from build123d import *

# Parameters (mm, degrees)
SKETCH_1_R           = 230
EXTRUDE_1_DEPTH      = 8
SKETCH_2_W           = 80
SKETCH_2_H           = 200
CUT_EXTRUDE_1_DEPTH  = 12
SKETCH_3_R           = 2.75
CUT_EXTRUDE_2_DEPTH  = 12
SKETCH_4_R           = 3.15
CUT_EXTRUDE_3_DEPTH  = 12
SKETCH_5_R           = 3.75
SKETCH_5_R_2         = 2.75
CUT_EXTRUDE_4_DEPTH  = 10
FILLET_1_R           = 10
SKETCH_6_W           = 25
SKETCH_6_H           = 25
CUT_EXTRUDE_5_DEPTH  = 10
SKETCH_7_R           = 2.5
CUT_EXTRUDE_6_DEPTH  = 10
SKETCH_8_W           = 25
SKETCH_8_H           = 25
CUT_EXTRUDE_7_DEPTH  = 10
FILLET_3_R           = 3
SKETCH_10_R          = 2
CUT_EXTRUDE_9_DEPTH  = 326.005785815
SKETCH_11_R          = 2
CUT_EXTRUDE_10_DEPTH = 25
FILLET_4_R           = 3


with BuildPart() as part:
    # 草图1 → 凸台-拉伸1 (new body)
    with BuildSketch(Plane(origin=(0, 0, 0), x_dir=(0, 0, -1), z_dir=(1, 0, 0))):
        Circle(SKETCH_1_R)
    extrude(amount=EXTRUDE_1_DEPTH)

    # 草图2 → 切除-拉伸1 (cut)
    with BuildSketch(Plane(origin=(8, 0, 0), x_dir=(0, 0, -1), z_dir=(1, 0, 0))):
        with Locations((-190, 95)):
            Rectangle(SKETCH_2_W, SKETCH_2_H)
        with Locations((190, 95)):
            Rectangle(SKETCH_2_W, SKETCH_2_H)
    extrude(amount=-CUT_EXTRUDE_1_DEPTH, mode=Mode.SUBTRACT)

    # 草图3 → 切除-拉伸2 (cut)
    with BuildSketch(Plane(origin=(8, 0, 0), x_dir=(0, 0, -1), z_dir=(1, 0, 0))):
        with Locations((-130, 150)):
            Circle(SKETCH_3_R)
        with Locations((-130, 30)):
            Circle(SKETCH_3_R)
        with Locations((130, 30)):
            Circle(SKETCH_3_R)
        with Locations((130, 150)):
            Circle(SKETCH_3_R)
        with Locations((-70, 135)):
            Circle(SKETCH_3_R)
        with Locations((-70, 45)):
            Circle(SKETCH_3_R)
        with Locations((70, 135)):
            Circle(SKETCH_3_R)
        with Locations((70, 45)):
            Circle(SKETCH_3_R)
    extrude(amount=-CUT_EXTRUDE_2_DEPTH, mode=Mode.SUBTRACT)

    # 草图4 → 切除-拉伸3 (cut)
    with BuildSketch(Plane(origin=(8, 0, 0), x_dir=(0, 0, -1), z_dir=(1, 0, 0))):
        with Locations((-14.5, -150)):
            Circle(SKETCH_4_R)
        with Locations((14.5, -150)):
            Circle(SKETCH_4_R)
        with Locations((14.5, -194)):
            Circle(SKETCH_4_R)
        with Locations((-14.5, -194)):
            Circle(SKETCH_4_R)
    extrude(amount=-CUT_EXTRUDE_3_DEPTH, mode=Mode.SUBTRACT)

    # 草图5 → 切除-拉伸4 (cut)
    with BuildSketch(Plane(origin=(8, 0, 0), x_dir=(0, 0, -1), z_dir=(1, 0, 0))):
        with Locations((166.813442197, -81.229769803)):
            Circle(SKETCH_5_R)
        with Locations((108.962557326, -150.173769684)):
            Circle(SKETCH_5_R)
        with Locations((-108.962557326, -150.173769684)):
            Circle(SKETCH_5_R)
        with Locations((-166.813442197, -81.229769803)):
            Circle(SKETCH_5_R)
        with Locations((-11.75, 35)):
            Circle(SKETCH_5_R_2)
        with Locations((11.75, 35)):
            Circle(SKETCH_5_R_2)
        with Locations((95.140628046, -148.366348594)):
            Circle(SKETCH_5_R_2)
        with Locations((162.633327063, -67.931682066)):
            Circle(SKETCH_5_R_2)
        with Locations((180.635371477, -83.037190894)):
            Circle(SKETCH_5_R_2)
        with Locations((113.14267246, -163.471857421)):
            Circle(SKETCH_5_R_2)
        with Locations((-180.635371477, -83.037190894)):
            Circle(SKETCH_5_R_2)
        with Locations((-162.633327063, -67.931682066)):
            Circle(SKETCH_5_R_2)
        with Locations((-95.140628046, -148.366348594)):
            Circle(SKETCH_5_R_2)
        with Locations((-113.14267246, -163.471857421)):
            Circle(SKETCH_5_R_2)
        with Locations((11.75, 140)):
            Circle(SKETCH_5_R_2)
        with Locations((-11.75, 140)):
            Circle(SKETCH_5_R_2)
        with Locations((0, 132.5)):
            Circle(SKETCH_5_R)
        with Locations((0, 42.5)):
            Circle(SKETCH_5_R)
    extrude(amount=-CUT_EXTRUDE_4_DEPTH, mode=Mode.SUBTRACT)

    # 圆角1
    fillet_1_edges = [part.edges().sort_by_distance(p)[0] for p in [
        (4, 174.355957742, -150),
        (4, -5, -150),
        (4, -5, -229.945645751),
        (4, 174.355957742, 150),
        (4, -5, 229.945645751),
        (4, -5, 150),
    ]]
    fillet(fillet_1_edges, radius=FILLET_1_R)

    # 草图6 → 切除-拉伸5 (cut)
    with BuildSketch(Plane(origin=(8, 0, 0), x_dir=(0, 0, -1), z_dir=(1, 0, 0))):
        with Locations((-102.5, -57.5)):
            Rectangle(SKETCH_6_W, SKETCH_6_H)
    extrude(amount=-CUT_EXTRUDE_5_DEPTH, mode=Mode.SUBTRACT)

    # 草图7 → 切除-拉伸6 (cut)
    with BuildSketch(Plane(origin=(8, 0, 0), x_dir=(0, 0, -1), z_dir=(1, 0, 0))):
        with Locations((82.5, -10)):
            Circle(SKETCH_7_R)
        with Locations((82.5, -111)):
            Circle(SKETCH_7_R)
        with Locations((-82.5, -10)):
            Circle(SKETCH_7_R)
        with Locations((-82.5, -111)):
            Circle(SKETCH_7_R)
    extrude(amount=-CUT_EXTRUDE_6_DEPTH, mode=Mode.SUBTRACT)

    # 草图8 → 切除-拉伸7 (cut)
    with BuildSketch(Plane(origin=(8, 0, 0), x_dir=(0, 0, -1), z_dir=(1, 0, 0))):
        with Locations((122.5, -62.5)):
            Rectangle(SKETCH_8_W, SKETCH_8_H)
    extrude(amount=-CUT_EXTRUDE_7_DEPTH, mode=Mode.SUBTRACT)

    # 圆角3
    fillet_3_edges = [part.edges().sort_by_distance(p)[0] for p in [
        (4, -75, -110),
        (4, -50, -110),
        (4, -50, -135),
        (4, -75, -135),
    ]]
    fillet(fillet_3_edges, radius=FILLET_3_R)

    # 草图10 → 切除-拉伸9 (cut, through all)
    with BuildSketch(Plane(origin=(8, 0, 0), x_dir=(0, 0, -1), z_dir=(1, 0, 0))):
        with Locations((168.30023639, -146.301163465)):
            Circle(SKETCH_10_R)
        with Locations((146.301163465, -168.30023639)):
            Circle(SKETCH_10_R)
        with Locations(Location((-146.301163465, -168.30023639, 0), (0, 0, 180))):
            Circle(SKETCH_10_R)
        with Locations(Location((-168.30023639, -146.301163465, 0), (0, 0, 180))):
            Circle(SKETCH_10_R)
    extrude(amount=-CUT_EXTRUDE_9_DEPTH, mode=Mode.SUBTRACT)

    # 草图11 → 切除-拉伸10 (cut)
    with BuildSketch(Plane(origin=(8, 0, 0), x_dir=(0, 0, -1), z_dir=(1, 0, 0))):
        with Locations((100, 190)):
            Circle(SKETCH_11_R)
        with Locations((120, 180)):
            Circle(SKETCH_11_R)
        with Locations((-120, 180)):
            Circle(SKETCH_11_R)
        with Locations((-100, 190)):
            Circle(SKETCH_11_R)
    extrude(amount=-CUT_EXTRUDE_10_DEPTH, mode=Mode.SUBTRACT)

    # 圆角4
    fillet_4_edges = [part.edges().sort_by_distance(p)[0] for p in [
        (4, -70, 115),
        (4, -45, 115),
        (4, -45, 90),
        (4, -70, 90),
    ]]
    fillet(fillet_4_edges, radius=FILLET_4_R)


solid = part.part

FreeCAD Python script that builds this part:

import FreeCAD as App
import Part
import Sketcher
from FreeCAD import Vector
Q = App.Units.Quantity


def edges_at(feature, points):
    """Names of the edges that pass closest to the given points."""
    edges = feature.Shape.Edges
    near = lambda p: min(range(len(edges)), key=lambda i: edges[i].distToShape(Part.Vertex(*p))[0])
    return sorted({f"Edge{near(p) + 1}" for p in points})


def add_polygon(sketch, points):
    """Adds a closed chain of lines whose ends are joined by coincident constraints."""
    first, n = sketch.GeometryCount, len(points)
    for a, b in zip(points, points[1:] + points[:1]):
        sketch.addGeometry(Part.LineSegment(App.Vector(*a, 0), App.Vector(*b, 0)), False)
    for i in range(n):
        sketch.addConstraint(Sketcher.Constraint("Coincident", first + i, 2, first + (i + 1) % n, 1))

doc = App.newDocument("Part")
body = doc.addObject("PartDesign::Body", "Body")

# Sketch on YZ plane
sketch1 = body.newObject("Sketcher::SketchObject", "Sketch")
sketch1.AttachmentSupport = (doc.getObject("YZ_Plane"), [""])
sketch1.MapMode = "FlatFace"
sketch1.addGeometry(Part.Circle(Vector(0, 0, 0), Vector(0, 0, 1), 230), False)
sketch1.addConstraint([
    Sketcher.Constraint("Coincident", 0, 3, -1, 1),
    Sketcher.Constraint("Diameter", 0, Q("460 mm")),
])
pad1 = body.newObject("PartDesign::Pad", "Pad")
pad1.Profile = sketch1
pad1.Length = 8

# Sketch on YZ plane
sketch2 = body.newObject("Sketcher::SketchObject", "Sketch001")
sketch2.AttachmentSupport = (doc.getObject("YZ_Plane"), [""])
sketch2.MapMode = "FlatFace"
sketch2.AttachmentOffset = App.Placement(Vector(0, 0, 8), App.Rotation())
add_polygon(sketch2, [(195, 230), (-5, 230), (-5, 150), (195, 150)])  # lines 0-3
add_polygon(sketch2, [(195, -150), (-5, -150), (-5, -230), (195, -230)])  # lines 4-7
sketch2.addConstraint([
    Sketcher.Constraint("Horizontal", 0),
    Sketcher.Constraint("Vertical", 1),
    Sketcher.Constraint("Horizontal", 2),
    Sketcher.Constraint("Vertical", 3),
    Sketcher.Constraint("Horizontal", 4),
    Sketcher.Constraint("Vertical", 5),
    Sketcher.Constraint("Horizontal", 6),
    Sketcher.Constraint("Vertical", 7),
    Sketcher.Constraint("Symmetric", 1, 2, 4, 2, -1),
    Sketcher.Constraint("Symmetric", 3, 2, 6, 2, -1),
    Sketcher.Constraint("DistanceX", 0, 2, 0, 1, Q("200 mm")),
    Sketcher.Constraint("DistanceY", 1, 2, 1, 1, Q("80 mm")),
    Sketcher.Constraint("DistanceX", 0, 2, -1, 1, Q("5 mm")),
    Sketcher.Constraint("DistanceY", -1, 1, 0, 2, Q("230 mm")),
])
pocket1 = body.newObject("PartDesign::Pocket", "Pocket")
pocket1.Profile = sketch2
pocket1.Length = 12

# Sketch on YZ plane
sketch3 = body.newObject("Sketcher::SketchObject", "Sketch002")
sketch3.AttachmentSupport = (doc.getObject("YZ_Plane"), [""])
sketch3.MapMode = "FlatFace"
sketch3.AttachmentOffset = App.Placement(Vector(0, 0, 8), App.Rotation())
sketch3.addGeometry([
    Part.Circle(Vector(150, 130, 0), Vector(0, 0, 1), 2.75),  # 0
    Part.Circle(Vector(30, 130, 0), Vector(0, 0, 1), 2.75),  # 1
    Part.Circle(Vector(30, -130, 0), Vector(0, 0, 1), 2.75),  # 2
    Part.Circle(Vector(150, -130, 0), Vector(0, 0, 1), 2.75),  # 3
    Part.Circle(Vector(135, 70, 0), Vector(0, 0, 1), 2.75),  # 4
    Part.Circle(Vector(45, 70, 0), Vector(0, 0, 1), 2.75),  # 5
    Part.Circle(Vector(135, -70, 0), Vector(0, 0, 1), 2.75),  # 6
    Part.Circle(Vector(45, -70, 0), Vector(0, 0, 1), 2.75),  # 7
], False)
sketch3.addConstraint([
    Sketcher.Constraint("Equal", 0, 1),
    Sketcher.Constraint("Equal", 1, 2),
    Sketcher.Constraint("Equal", 2, 3),
    Sketcher.Constraint("Equal", 3, 4),
    Sketcher.Constraint("Equal", 4, 5),
    Sketcher.Constraint("Equal", 5, 6),
    Sketcher.Constraint("Equal", 6, 7),
    Sketcher.Constraint("Symmetric", 1, 3, 2, 3, -1),
    Sketcher.Constraint("Symmetric", 0, 3, 3, 3, -1),
    Sketcher.Constraint("Symmetric", 4, 3, 6, 3, -1),
    Sketcher.Constraint("Symmetric", 5, 3, 7, 3, -1),
    Sketcher.Constraint("Horizontal", 0, 3, 1, 3),
    Sketcher.Constraint("Horizontal", 4, 3, 5, 3),
    Sketcher.Constraint("Diameter", 0, Q("5.5 mm")),
    Sketcher.Constraint("DistanceX", -1, 1, 0, 3, Q("150 mm")),
    Sketcher.Constraint("DistanceY", -1, 1, 0, 3, Q("130 mm")),
    Sketcher.Constraint("DistanceX", -1, 1, 1, 3, Q("30 mm")),
    Sketcher.Constraint("DistanceX", -1, 1, 4, 3, Q("135 mm")),
    Sketcher.Constraint("DistanceY", -1, 1, 4, 3, Q("70 mm")),
    Sketcher.Constraint("DistanceX", -1, 1, 5, 3, Q("45 mm")),
])
pocket2 = body.newObject("PartDesign::Pocket", "Pocket001")
pocket2.Profile = sketch3
pocket2.Length = 12

# Sketch on YZ plane
sketch4 = body.newObject("Sketcher::SketchObject", "Sketch003")
sketch4.AttachmentSupport = (doc.getObject("YZ_Plane"), [""])
sketch4.MapMode = "FlatFace"
sketch4.AttachmentOffset = App.Placement(Vector(0, 0, 8), App.Rotation())
sketch4.addGeometry([
    Part.Circle(Vector(-150, 14.5, 0), Vector(0, 0, 1), 3.15),
    Part.Circle(Vector(-150, -14.5, 0), Vector(0, 0, 1), 3.15),
    Part.Circle(Vector(-194, -14.5, 0), Vector(0, 0, 1), 3.15),
    Part.Circle(Vector(-194, 14.5, 0), Vector(0, 0, 1), 3.15),
], False)
sketch4.addConstraint([
    Sketcher.Constraint("Equal", 0, 1),
    Sketcher.Constraint("Equal", 1, 2),
    Sketcher.Constraint("Equal", 2, 3),
    Sketcher.Constraint("Symmetric", 0, 3, 1, 3, -1),
    Sketcher.Constraint("Symmetric", 2, 3, 3, 3, -1),
    Sketcher.Constraint("Horizontal", 1, 3, 2, 3),
    Sketcher.Constraint("Diameter", 0, Q("6.3 mm")),
    Sketcher.Constraint("DistanceX", 0, 3, -1, 1, Q("150 mm")),
    Sketcher.Constraint("DistanceX", 2, 3, -1, 1, Q("194 mm")),
    Sketcher.Constraint("DistanceY", 1, 3, 0, 3, Q("29 mm")),
])
pocket3 = body.newObject("PartDesign::Pocket", "Pocket002")
pocket3.Profile = sketch4
pocket3.Length = 12

# Sketch on YZ plane
sketch5 = body.newObject("Sketcher::SketchObject", "Sketch004")
sketch5.AttachmentSupport = (doc.getObject("YZ_Plane"), [""])
sketch5.MapMode = "FlatFace"
sketch5.AttachmentOffset = App.Placement(Vector(0, 0, 8), App.Rotation())
sketch5.addGeometry([
    Part.Circle(Vector(-81.22977, -166.813442, 0), Vector(0, 0, 1), 3.75),  # 0
    Part.Circle(Vector(-150.17377, -108.962557, 0), Vector(0, 0, 1), 3.75),  # 1
    Part.Circle(Vector(-150.17377, 108.962557, 0), Vector(0, 0, 1), 3.75),  # 2
    Part.Circle(Vector(-81.22977, 166.813442, 0), Vector(0, 0, 1), 3.75),  # 3
    Part.Circle(Vector(35, 11.75, 0), Vector(0, 0, 1), 2.75),  # 4
    Part.Circle(Vector(35, -11.75, 0), Vector(0, 0, 1), 2.75),  # 5
    Part.Circle(Vector(-148.366349, -95.140628, 0), Vector(0, 0, 1), 2.75),  # 6
    Part.Circle(Vector(-67.931682, -162.633327, 0), Vector(0, 0, 1), 2.75),  # 7
    Part.Circle(Vector(-83.037191, -180.635371, 0), Vector(0, 0, 1), 2.75),  # 8
    Part.Circle(Vector(-163.471857, -113.142672, 0), Vector(0, 0, 1), 2.75),  # 9
    Part.Circle(Vector(-83.037191, 180.635371, 0), Vector(0, 0, 1), 2.75),  # 10
    Part.Circle(Vector(-67.931682, 162.633327, 0), Vector(0, 0, 1), 2.75),  # 11
    Part.Circle(Vector(-148.366349, 95.140628, 0), Vector(0, 0, 1), 2.75),  # 12
    Part.Circle(Vector(-163.471857, 113.142672, 0), Vector(0, 0, 1), 2.75),  # 13
    Part.Circle(Vector(140, -11.75, 0), Vector(0, 0, 1), 2.75),  # 14
    Part.Circle(Vector(140, 11.75, 0), Vector(0, 0, 1), 2.75),  # 15
    Part.Circle(Vector(132.5, 0, 0), Vector(0, 0, 1), 3.75),  # 16
    Part.Circle(Vector(42.5, 0, 0), Vector(0, 0, 1), 3.75),  # 17
], False)
sketch5.addConstraint([
    Sketcher.Constraint("Equal", 0, 1),
    Sketcher.Constraint("Equal", 1, 2),
    Sketcher.Constraint("Equal", 2, 3),
    Sketcher.Constraint("Equal", 4, 5),
    Sketcher.Constraint("Equal", 5, 6),
    Sketcher.Constraint("Equal", 6, 7),
    Sketcher.Constraint("Equal", 7, 8),
    Sketcher.Constraint("Equal", 8, 9),
    Sketcher.Constraint("Equal", 9, 10),
    Sketcher.Constraint("Equal", 10, 11),
    Sketcher.Constraint("Equal", 11, 12),
    Sketcher.Constraint("Equal", 12, 13),
    Sketcher.Constraint("Equal", 13, 14),
    Sketcher.Constraint("Equal", 14, 15),
    Sketcher.Constraint("Equal", 3, 16),
    Sketcher.Constraint("Equal", 16, 17),
    Sketcher.Constraint("Symmetric", 1, 3, 2, 3, -1),
    Sketcher.Constraint("Symmetric", 0, 3, 3, 3, -1),
    Sketcher.Constraint("Symmetric", 4, 3, 5, 3, -1),
    Sketcher.Constraint("Symmetric", 8, 3, 10, 3, -1),
    Sketcher.Constraint("Symmetric", 7, 3, 11, 3, -1),
    Sketcher.Constraint("Symmetric", 6, 3, 12, 3, -1),
    Sketcher.Constraint("Symmetric", 9, 3, 13, 3, -1),
    Sketcher.Constraint("Symmetric", 14, 3, 15, 3, -1),
    Sketcher.Constraint("PointOnObject", 16, 3, -1),
    Sketcher.Constraint("PointOnObject", 17, 3, -1),
    Sketcher.Constraint("Horizontal", 5, 3, 14, 3),
    Sketcher.Constraint("Diameter", 0, Q("7.5 mm")),
    Sketcher.Constraint("Diameter", 4, Q("5.5 mm")),
    Sketcher.Constraint("DistanceX", -1, 1, 4, 3, Q("35 mm")),
    Sketcher.Constraint("DistanceX", -1, 1, 14, 3, Q("140 mm")),
    Sketcher.Constraint("DistanceX", 17, 3, 16, 3, Q("90 mm")),
    Sketcher.Constraint("DistanceX", -1, 1, 16, 3, Q("132.5 mm")),
    Sketcher.Constraint("DistanceY", 5, 3, 4, 3, Q("23.5 mm")),
    Sketcher.Constraint("DistanceX", 1, 3, 0, 3, Q("68.944 mm")),
    Sketcher.Constraint("DistanceY", 0, 3, 2, 3, Q("275.776 mm")),
    Sketcher.Constraint("DistanceY", 6, 3, 10, 3, Q("275.776 mm")),
    Sketcher.Constraint("DistanceY", 7, 3, 6, 3, Q("67.492699 mm")),
    Sketcher.Constraint("DistanceY", 8, 3, 9, 3, Q("67.492699 mm")),
    Sketcher.Constraint("DistanceX", 0, 3, -1, 1, Q("81.22977 mm")),
    Sketcher.Constraint("DistanceX", 6, 3, -1, 1, Q("148.366349 mm")),
    Sketcher.Constraint("DistanceY", 6, 3, -1, 1, Q("95.140628 mm")),
    Sketcher.Constraint("DistanceX", 8, 3, -1, 1, Q("83.037191 mm")),
    Sketcher.Constraint("DistanceY", 1, 3, 6, 3, Q("13.821929 mm")),
    Sketcher.Constraint("DistanceX", 8, 3, 7, 3, Q("15.105509 mm")),
    Sketcher.Constraint("DistanceX", 9, 3, 6, 3, Q("15.105509 mm")),
])
pocket4 = body.newObject("PartDesign::Pocket", "Pocket003")
pocket4.Profile = sketch5
pocket4.Length = 10
doc.recompute()

fillet = body.newObject("PartDesign::Fillet", "Fillet")
fillet.Base = (pocket4, edges_at(pocket4, [
    (4, 174.356, -150),
    (4, -5, -150),
    (4, -5, -229.946),
    (4, 174.356, 150),
    (4, -5, 229.946),
    (4, -5, 150),
]))
fillet.Radius = 10

# Sketch on YZ plane
sketch6 = body.newObject("Sketcher::SketchObject", "Sketch005")
sketch6.AttachmentSupport = (doc.getObject("YZ_Plane"), [""])
sketch6.MapMode = "FlatFace"
sketch6.AttachmentOffset = App.Placement(Vector(0, 0, 8), App.Rotation())
add_polygon(sketch6, [(-45, 115), (-70, 115), (-70, 90), (-45, 90)])  # lines 0-3
sketch6.addConstraint([
    Sketcher.Constraint("Horizontal", 0),
    Sketcher.Constraint("Vertical", 1),
    Sketcher.Constraint("Horizontal", 2),
    Sketcher.Constraint("Vertical", 3),
    Sketcher.Constraint("Equal", 2, 1),
    Sketcher.Constraint("DistanceX", 0, 2, 0, 1, Q("25 mm")),
    Sketcher.Constraint("DistanceX", 0, 2, -1, 1, Q("70 mm")),
    Sketcher.Constraint("DistanceY", -1, 1, 0, 2, Q("115 mm")),
])
pocket5 = body.newObject("PartDesign::Pocket", "Pocket004")
pocket5.Profile = sketch6
pocket5.Length = 10

# Sketch on YZ plane
sketch7 = body.newObject("Sketcher::SketchObject", "Sketch006")
sketch7.AttachmentSupport = (doc.getObject("YZ_Plane"), [""])
sketch7.MapMode = "FlatFace"
sketch7.AttachmentOffset = App.Placement(Vector(0, 0, 8), App.Rotation())
sketch7.addGeometry([
    Part.Circle(Vector(-10, -82.5, 0), Vector(0, 0, 1), 2.5),
    Part.Circle(Vector(-111, -82.5, 0), Vector(0, 0, 1), 2.5),
    Part.Circle(Vector(-10, 82.5, 0), Vector(0, 0, 1), 2.5),
    Part.Circle(Vector(-111, 82.5, 0), Vector(0, 0, 1), 2.5),
], False)
sketch7.addConstraint([
    Sketcher.Constraint("Equal", 0, 1),
    Sketcher.Constraint("Equal", 1, 2),
    Sketcher.Constraint("Equal", 2, 3),
    Sketcher.Constraint("Symmetric", 0, 3, 2, 3, -1),
    Sketcher.Constraint("Symmetric", 1, 3, 3, 3, -1),
    Sketcher.Constraint("Horizontal", 0, 3, 1, 3),
    Sketcher.Constraint("Diameter", 0, Q("5 mm")),
    Sketcher.Constraint("DistanceX", 0, 3, -1, 1, Q("10 mm")),
    Sketcher.Constraint("DistanceX", 1, 3, -1, 1, Q("111 mm")),
    Sketcher.Constraint("DistanceY", 0, 3, 2, 3, Q("165 mm")),
])
pocket6 = body.newObject("PartDesign::Pocket", "Pocket005")
pocket6.Profile = sketch7
pocket6.Length = 10

# Sketch on YZ plane
sketch8 = body.newObject("Sketcher::SketchObject", "Sketch007")
sketch8.AttachmentSupport = (doc.getObject("YZ_Plane"), [""])
sketch8.MapMode = "FlatFace"
sketch8.AttachmentOffset = App.Placement(Vector(0, 0, 8), App.Rotation())
add_polygon(sketch8, [(-50, -110), (-75, -110), (-75, -135), (-50, -135)])  # lines 0-3
sketch8.addConstraint([
    Sketcher.Constraint("Horizontal", 0),
    Sketcher.Constraint("Vertical", 1),
    Sketcher.Constraint("Horizontal", 2),
    Sketcher.Constraint("Vertical", 3),
    Sketcher.Constraint("Equal", 2, 1),
    Sketcher.Constraint("DistanceX", 0, 2, 0, 1, Q("25 mm")),
    Sketcher.Constraint("DistanceX", 0, 2, -1, 1, Q("75 mm")),
    Sketcher.Constraint("DistanceY", 0, 2, -1, 1, Q("110 mm")),
])
pocket7 = body.newObject("PartDesign::Pocket", "Pocket006")
pocket7.Profile = sketch8
pocket7.Length = 10
doc.recompute()

fillet2 = body.newObject("PartDesign::Fillet", "Fillet001")
fillet2.Base = (pocket7, edges_at(pocket7, [
    (4, -75, -110),
    (4, -50, -110),
    (4, -50, -135),
    (4, -75, -135),
]))
fillet2.Radius = 3

# Sketch on YZ plane
sketch9 = body.newObject("Sketcher::SketchObject", "Sketch008")
sketch9.AttachmentSupport = (doc.getObject("YZ_Plane"), [""])
sketch9.MapMode = "FlatFace"
sketch9.AttachmentOffset = App.Placement(Vector(0, 0, 8), App.Rotation())
sketch9.addGeometry([
    Part.Circle(Vector(-146.301163, -168.300236, 0), Vector(0, 0, 1), 2),
    Part.Circle(Vector(-168.300236, -146.301163, 0), Vector(0, 0, 1), 2),
    Part.Circle(Vector(-168.300236, 146.301163, 0), Vector(0, 0, 1), 2),
    Part.Circle(Vector(-146.301163, 168.300236, 0), Vector(0, 0, 1), 2),
], False)
sketch9.addConstraint([
    Sketcher.Constraint("Equal", 0, 1),
    Sketcher.Constraint("Equal", 1, 2),
    Sketcher.Constraint("Equal", 2, 3),
    Sketcher.Constraint("Symmetric", 1, 3, 2, 3, -1),
    Sketcher.Constraint("Symmetric", 0, 3, 3, 3, -1),
    Sketcher.Constraint("Diameter", 0, Q("4 mm")),
    Sketcher.Constraint("DistanceY", 0, 3, 2, 3, Q("314.6014 mm")),
    Sketcher.Constraint("DistanceX", 0, 3, -1, 1, Q("146.301163 mm")),
    Sketcher.Constraint("DistanceY", 0, 3, -1, 1, Q("168.300236 mm")),
    Sketcher.Constraint("DistanceX", 1, 3, -1, 1, Q("168.300236 mm")),
])
pocket8 = body.newObject("PartDesign::Pocket", "Pocket007")
pocket8.Profile = sketch9
pocket8.Type = "ThroughAll"

# Sketch on YZ plane
sketch10 = body.newObject("Sketcher::SketchObject", "Sketch009")
sketch10.AttachmentSupport = (doc.getObject("YZ_Plane"), [""])
sketch10.MapMode = "FlatFace"
sketch10.AttachmentOffset = App.Placement(Vector(0, 0, 8), App.Rotation())
sketch10.addGeometry([
    Part.Circle(Vector(190, -100, 0), Vector(0, 0, 1), 2),
    Part.Circle(Vector(180, -120, 0), Vector(0, 0, 1), 2),
    Part.Circle(Vector(180, 120, 0), Vector(0, 0, 1), 2),
    Part.Circle(Vector(190, 100, 0), Vector(0, 0, 1), 2),
], False)
sketch10.addConstraint([
    Sketcher.Constraint("Equal", 0, 1),
    Sketcher.Constraint("Equal", 1, 2),
    Sketcher.Constraint("Equal", 2, 3),
    Sketcher.Constraint("Symmetric", 1, 3, 2, 3, -1),
    Sketcher.Constraint("Symmetric", 0, 3, 3, 3, -1),
    Sketcher.Constraint("Diameter", 0, Q("4 mm")),
    Sketcher.Constraint("DistanceX", -1, 1, 0, 3, Q("190 mm")),
    Sketcher.Constraint("DistanceY", 0, 3, -1, 1, Q("100 mm")),
    Sketcher.Constraint("DistanceX", -1, 1, 1, 3, Q("180 mm")),
    Sketcher.Constraint("DistanceY", 1, 3, -1, 1, Q("120 mm")),
])
pocket9 = body.newObject("PartDesign::Pocket", "Pocket008")
pocket9.Profile = sketch10
pocket9.Length = 25
doc.recompute()

fillet3 = body.newObject("PartDesign::Fillet", "Fillet002")
fillet3.Base = (pocket9, edges_at(pocket9, [
    (4, -70, 115),
    (4, -45, 115),
    (4, -45, 90),
    (4, -70, 90),
]))
fillet3.Radius = 3

doc.recompute()
